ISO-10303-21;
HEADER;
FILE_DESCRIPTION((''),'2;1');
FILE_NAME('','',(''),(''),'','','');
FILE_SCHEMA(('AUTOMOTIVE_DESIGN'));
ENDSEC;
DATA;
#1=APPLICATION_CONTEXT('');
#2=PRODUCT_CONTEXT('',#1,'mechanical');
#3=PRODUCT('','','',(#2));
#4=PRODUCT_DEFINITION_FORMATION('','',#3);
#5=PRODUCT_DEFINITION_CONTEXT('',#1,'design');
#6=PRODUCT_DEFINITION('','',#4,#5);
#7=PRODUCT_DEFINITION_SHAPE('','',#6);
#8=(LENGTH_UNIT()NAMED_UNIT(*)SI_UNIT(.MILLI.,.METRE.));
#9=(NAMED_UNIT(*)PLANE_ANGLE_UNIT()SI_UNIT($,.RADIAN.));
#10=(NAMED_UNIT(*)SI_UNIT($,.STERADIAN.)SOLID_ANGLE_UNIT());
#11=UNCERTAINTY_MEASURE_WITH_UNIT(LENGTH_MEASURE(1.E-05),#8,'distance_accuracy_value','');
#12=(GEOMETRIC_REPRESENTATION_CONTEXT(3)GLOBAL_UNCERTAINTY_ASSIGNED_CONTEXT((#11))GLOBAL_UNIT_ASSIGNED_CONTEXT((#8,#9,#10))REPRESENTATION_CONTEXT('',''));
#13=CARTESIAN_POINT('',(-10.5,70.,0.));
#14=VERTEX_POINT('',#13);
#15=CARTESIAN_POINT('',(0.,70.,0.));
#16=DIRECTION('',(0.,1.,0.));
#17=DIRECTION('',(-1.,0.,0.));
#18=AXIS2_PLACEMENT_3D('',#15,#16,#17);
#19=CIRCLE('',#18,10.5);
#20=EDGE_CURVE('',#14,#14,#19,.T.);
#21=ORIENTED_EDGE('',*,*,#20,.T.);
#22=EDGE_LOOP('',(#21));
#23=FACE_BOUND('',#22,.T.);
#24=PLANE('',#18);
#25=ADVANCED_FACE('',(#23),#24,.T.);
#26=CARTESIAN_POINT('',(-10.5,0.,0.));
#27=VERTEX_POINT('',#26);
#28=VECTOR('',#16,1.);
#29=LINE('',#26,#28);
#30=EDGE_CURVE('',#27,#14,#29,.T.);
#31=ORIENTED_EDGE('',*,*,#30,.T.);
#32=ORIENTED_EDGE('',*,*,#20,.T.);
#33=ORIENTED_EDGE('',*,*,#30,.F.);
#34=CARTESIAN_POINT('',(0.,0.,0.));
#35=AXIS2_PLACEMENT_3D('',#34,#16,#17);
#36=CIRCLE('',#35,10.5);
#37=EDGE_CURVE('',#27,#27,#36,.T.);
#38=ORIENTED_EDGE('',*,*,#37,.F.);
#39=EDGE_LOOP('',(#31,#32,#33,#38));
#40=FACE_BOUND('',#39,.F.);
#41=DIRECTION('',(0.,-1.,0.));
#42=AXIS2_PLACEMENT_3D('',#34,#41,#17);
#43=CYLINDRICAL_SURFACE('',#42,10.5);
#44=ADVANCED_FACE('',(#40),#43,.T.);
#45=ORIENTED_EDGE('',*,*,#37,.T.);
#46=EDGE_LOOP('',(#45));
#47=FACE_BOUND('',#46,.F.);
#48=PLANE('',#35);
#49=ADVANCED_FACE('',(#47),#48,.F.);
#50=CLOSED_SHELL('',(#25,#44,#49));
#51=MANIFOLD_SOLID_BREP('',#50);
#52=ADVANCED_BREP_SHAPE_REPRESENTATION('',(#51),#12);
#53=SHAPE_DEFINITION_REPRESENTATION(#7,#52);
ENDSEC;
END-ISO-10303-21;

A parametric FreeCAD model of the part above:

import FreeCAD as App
import Part
import Sketcher

V = App.Vector

doc = App.newDocument("Part")
params = doc.addObject("Spreadsheet::Sheet", "Params")
for row, (alias, value) in enumerate([
    ("sketch1_diameter", "21 mm"),
    ("pad1_length", "70 mm"),
], start=1):
    params.set(f"A{row}", alias)
    params.set(f"B{row}", "=" + value)
    params.setAlias(f"B{row}", alias)

body = doc.addObject("PartDesign::Body", "Body")

# Sketch on XZ plane
sketch1 = doc.addObject("Sketcher::SketchObject", "Sketch")
body.addObject(sketch1)
sketch1.AttachmentSupport = (doc.XZ_Plane, [""])
sketch1.MapMode = "FlatFace"
sketch1.addGeometry(Part.Circle(V(0, 0, 0), V(0, 0, 1), 10), False)
sketch1.addConstraint([
    Sketcher.Constraint("Coincident", 0, 3, -1, 1),
    Sketcher.Constraint("Diameter", 0, 21.0),
])
sketch1.setExpression("Constraints[1]", "Params.sketch1_diameter")
pad1 = doc.addObject("PartDesign::Pad", "Pad")
body.addObject(pad1)
pad1.Profile = sketch1
pad1.setExpression("Length", "Params.pad1_length")
pad1.Reversed = True

doc.recompute()
